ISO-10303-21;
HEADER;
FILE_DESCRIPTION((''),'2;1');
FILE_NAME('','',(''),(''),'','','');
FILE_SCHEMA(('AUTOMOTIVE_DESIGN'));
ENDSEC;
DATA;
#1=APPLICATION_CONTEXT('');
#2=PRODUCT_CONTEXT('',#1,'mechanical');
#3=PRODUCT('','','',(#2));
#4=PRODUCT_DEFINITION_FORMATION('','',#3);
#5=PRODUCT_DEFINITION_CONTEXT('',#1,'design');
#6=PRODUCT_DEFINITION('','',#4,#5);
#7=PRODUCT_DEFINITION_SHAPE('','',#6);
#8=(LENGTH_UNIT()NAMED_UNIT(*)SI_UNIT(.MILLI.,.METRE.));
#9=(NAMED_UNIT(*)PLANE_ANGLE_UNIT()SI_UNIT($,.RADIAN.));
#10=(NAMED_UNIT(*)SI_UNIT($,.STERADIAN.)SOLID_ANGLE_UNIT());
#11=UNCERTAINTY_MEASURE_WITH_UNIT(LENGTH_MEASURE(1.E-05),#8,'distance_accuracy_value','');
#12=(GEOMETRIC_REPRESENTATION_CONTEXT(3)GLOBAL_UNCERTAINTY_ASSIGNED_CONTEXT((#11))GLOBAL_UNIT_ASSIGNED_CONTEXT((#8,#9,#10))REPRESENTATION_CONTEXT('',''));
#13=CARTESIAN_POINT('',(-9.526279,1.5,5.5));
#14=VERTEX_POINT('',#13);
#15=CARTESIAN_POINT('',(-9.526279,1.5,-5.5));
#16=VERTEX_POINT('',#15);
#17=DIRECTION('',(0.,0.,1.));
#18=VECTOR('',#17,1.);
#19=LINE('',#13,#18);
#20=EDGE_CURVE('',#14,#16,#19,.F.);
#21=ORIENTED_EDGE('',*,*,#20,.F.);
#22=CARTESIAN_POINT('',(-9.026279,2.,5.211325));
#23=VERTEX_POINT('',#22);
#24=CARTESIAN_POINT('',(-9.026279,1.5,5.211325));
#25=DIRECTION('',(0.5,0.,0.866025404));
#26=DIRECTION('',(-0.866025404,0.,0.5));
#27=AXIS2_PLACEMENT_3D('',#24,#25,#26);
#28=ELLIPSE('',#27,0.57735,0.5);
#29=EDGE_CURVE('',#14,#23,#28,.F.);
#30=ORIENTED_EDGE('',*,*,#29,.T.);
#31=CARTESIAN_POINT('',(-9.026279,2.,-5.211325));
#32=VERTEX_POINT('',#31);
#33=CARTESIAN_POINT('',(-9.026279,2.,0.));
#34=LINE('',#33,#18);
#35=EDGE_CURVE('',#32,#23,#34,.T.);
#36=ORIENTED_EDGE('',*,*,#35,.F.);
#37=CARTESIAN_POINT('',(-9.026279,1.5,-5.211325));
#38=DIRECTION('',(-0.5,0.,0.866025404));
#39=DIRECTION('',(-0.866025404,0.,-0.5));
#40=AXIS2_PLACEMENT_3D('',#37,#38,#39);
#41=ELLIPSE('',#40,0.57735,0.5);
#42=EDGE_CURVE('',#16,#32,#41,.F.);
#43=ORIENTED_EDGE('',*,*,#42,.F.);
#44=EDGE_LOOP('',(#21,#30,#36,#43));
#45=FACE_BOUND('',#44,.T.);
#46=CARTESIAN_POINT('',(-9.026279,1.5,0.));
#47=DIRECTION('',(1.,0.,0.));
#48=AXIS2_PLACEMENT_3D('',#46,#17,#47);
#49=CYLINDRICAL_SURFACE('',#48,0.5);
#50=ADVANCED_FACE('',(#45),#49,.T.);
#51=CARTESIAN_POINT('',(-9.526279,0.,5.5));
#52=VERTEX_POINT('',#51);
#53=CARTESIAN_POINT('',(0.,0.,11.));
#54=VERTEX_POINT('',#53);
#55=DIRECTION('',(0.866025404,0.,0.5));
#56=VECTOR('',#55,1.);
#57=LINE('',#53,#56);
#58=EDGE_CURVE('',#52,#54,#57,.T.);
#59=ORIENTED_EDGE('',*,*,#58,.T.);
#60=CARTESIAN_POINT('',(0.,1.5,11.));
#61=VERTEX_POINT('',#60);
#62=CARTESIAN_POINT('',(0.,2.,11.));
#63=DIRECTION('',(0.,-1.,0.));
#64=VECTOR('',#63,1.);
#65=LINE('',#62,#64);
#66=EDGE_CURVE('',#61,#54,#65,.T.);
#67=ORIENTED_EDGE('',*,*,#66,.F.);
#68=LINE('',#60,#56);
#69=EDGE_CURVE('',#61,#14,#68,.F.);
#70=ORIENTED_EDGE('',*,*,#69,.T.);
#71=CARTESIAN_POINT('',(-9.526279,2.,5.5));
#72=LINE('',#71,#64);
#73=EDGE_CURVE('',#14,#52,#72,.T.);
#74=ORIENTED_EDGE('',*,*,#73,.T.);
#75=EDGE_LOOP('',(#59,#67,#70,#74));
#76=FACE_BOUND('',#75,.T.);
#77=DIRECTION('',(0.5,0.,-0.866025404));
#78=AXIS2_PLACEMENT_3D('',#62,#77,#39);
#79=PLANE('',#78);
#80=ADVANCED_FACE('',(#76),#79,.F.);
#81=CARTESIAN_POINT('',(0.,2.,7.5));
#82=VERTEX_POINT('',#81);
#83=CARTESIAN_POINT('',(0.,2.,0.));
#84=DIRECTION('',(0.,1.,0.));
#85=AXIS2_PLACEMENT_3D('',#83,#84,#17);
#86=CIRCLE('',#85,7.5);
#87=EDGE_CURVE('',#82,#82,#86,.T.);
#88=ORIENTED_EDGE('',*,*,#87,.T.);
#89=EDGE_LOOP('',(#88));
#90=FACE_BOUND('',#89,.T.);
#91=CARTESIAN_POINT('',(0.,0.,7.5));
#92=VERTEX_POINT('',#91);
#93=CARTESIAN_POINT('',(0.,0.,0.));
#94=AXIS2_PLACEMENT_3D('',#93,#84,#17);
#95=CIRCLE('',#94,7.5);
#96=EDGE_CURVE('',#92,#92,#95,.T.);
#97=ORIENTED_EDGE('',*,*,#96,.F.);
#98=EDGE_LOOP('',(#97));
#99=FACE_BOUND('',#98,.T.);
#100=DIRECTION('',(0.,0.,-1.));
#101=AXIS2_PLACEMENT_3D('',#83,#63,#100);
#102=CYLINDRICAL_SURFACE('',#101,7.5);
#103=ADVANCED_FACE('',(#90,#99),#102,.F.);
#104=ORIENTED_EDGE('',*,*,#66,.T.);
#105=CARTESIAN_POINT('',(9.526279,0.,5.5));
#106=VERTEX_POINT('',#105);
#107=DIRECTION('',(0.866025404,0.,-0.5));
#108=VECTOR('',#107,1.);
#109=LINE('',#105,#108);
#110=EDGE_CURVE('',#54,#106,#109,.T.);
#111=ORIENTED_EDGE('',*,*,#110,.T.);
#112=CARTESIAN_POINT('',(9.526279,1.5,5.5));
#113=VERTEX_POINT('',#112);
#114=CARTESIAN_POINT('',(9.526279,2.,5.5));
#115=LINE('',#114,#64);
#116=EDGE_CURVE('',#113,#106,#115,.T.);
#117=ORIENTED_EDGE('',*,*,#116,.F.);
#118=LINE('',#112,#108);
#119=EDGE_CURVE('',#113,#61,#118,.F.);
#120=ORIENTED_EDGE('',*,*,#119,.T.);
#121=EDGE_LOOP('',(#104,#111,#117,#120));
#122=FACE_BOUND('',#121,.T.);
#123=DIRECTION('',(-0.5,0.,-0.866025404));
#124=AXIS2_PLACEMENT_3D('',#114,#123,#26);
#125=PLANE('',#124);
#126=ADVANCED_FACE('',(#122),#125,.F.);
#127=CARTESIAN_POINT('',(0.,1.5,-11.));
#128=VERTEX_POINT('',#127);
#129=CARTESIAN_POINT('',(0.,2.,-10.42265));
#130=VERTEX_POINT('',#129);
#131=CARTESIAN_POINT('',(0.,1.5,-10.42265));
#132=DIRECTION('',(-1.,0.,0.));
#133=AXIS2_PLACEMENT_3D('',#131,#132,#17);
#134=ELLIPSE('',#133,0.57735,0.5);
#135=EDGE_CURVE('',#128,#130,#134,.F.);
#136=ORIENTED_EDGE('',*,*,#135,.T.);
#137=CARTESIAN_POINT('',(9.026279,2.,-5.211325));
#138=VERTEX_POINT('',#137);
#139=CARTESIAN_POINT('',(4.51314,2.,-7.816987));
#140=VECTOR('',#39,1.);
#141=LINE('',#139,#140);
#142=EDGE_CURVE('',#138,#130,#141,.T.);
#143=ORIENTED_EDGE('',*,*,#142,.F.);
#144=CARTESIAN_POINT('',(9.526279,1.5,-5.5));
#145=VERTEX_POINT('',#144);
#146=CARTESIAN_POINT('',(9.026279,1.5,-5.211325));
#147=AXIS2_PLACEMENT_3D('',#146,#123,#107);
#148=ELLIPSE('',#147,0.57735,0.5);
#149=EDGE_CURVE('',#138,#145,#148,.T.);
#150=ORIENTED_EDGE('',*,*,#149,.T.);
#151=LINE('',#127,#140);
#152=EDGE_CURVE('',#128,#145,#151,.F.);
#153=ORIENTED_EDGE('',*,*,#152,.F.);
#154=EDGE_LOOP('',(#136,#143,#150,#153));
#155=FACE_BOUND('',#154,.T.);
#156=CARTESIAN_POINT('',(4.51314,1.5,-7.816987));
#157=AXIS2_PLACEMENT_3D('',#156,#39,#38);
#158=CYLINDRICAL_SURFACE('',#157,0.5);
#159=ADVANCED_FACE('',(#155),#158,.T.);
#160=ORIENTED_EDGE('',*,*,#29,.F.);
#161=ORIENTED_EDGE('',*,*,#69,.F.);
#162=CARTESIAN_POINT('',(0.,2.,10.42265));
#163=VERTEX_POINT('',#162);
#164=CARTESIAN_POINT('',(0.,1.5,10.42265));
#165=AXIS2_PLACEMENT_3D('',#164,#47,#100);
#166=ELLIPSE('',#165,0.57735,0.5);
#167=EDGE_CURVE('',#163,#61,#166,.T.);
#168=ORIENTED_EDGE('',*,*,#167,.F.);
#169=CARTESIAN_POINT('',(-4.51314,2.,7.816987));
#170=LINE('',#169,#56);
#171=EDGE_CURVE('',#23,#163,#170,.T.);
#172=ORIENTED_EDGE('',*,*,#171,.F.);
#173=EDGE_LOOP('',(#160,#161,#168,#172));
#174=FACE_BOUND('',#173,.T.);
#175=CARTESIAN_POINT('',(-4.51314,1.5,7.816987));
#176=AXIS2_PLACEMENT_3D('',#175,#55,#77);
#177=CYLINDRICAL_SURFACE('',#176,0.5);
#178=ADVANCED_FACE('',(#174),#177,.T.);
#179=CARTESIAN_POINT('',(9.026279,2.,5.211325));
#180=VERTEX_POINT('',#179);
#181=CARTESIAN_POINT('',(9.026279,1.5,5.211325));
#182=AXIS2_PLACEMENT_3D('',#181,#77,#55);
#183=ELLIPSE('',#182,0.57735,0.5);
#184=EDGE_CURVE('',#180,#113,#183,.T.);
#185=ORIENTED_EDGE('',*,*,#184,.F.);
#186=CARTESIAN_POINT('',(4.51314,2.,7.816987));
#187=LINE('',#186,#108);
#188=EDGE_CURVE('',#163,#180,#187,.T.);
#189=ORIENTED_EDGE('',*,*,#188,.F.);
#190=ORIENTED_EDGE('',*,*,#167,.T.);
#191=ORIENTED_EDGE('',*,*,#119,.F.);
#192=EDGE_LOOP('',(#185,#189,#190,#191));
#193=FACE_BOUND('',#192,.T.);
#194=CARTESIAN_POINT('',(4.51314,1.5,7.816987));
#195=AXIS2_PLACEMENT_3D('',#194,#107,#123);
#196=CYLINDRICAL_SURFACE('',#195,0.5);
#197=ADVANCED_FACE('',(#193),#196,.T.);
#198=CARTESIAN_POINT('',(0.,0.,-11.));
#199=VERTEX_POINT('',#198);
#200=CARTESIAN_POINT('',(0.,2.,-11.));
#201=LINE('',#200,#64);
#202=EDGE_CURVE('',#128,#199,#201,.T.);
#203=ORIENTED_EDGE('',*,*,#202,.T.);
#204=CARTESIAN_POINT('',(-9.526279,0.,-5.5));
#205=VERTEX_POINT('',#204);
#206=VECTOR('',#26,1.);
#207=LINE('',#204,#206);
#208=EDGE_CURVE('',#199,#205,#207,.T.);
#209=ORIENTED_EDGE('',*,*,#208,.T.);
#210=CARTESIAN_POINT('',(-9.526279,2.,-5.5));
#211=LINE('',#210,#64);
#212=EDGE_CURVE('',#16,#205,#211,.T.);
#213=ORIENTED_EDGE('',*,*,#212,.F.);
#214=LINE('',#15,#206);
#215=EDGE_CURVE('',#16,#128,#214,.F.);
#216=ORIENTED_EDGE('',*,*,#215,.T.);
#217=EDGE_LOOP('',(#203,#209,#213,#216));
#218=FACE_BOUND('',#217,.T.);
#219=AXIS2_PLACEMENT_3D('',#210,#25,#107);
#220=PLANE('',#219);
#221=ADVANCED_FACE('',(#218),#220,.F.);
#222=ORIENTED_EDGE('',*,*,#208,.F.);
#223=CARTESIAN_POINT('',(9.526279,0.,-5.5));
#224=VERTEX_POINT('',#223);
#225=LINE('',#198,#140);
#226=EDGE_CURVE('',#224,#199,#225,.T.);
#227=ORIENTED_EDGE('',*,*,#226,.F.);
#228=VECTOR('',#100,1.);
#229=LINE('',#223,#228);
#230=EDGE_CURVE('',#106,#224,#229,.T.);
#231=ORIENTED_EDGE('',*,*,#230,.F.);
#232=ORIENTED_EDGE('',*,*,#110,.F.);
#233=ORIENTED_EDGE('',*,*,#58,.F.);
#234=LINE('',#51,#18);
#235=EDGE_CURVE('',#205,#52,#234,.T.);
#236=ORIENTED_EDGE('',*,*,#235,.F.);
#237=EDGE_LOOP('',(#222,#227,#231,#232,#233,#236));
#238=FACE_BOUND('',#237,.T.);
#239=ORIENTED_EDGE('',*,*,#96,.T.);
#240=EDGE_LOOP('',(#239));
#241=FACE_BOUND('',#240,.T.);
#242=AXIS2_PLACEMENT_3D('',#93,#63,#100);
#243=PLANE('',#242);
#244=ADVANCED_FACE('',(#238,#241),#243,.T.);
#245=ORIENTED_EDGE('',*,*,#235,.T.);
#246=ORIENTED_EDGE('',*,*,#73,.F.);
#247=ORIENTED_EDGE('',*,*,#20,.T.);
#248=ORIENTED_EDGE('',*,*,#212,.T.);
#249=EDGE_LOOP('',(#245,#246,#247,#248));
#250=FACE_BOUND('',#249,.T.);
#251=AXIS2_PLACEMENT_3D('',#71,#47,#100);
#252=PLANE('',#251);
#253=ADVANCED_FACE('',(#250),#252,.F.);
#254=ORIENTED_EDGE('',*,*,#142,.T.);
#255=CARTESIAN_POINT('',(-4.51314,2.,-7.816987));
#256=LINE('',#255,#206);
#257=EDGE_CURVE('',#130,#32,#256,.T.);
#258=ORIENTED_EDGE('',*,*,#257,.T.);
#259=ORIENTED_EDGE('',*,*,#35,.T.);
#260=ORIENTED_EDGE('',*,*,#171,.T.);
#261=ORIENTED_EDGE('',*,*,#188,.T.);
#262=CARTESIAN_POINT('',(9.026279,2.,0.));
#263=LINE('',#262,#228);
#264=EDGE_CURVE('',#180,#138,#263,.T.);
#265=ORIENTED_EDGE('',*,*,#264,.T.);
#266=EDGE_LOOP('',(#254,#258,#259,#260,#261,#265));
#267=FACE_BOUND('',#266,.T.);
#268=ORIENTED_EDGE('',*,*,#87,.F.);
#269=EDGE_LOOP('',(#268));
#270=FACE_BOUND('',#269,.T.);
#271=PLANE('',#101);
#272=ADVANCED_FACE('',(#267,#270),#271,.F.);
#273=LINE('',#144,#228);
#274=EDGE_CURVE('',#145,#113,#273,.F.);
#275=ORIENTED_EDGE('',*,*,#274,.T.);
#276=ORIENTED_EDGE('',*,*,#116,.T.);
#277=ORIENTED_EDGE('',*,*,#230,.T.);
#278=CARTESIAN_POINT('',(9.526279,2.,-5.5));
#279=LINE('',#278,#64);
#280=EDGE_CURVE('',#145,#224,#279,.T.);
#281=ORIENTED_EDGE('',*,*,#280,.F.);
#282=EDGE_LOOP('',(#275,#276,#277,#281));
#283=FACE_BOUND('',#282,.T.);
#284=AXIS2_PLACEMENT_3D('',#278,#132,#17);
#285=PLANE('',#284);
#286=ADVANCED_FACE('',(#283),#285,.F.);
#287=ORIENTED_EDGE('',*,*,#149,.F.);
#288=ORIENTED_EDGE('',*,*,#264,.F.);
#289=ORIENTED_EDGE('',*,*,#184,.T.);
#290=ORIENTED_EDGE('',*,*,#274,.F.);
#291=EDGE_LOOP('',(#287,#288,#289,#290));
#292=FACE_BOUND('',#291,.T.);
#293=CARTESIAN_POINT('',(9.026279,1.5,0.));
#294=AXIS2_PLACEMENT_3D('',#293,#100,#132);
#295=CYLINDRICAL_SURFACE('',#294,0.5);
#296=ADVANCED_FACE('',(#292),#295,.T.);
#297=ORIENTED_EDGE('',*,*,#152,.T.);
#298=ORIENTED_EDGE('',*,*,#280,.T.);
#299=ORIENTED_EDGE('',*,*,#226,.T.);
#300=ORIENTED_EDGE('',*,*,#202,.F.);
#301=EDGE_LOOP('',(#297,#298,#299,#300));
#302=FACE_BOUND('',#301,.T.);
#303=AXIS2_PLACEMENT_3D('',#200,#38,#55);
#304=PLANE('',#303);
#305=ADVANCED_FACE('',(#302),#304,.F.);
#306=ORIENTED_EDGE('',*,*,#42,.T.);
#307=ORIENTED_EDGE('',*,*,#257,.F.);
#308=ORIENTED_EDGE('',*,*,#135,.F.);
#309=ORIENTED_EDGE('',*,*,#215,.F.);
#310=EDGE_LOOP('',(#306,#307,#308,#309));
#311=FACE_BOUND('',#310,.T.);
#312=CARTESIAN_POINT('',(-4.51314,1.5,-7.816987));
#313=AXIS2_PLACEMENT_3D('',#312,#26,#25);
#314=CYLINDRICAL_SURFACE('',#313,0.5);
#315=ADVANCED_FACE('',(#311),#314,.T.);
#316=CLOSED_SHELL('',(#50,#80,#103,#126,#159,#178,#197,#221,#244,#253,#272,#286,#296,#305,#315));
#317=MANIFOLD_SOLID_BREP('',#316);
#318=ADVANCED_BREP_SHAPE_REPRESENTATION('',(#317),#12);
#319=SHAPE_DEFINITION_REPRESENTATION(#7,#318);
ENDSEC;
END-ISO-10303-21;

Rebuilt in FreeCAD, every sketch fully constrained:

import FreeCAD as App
import Part
import Sketcher
Q = App.Units.Quantity


def edges_at(feature, points):
    """Names of the edges that pass closest to the given points."""
    edges = feature.Shape.Edges
    near = lambda p: min(range(len(edges)), key=lambda i: edges[i].distToShape(Part.Vertex(*p))[0])
    return sorted({f"Edge{near(p) + 1}" for p in points})

doc = App.newDocument("Part")
body = doc.addObject("PartDesign::Body", "Body")

# Sketch on XZ plane
sketch1 = body.newObject("Sketcher::SketchObject", "Sketch")
sketch1.AttachmentSupport = (doc.getObject("XZ_Plane"), [""])
sketch1.MapMode = "FlatFace"
sketch1.addGeometry([
    Part.LineSegment(App.Vector(10, -6, 0), App.Vector(0, -11, 0)),  # 0
    Part.LineSegment(App.Vector(0, -11, 0), App.Vector(-10, -6, 0)),  # 1
    Part.LineSegment(App.Vector(-10, -6, 0), App.Vector(-10, 6, 0)),  # 2
    Part.LineSegment(App.Vector(-10, 6, 0), App.Vector(0, 11, 0)),  # 3
    Part.LineSegment(App.Vector(0, 11, 0), App.Vector(10, 6, 0)),  # 4
    Part.LineSegment(App.Vector(10, 6, 0), App.Vector(10, -6, 0)),  # 5
    Part.Circle(App.Vector(0, 0, 0), App.Vector(0, 0, 1), 8),  # 6
], False)
sketch1.addConstraint([
    Sketcher.Constraint("Coincident", 0, 2, 1, 1),
    Sketcher.Constraint("Coincident", 1, 2, 2, 1),
    Sketcher.Constraint("Coincident", 2, 2, 3, 1),
    Sketcher.Constraint("Coincident", 3, 2, 4, 1),
    Sketcher.Constraint("Coincident", 4, 2, 5, 1),
    Sketcher.Constraint("Coincident", 5, 2, 0, 1),
    Sketcher.Constraint("Vertical", 2),
    Sketcher.Constraint("Vertical", 5),
    Sketcher.Constraint("Coincident", 6, 3, -1, 1),
    Sketcher.Constraint("Symmetric", 0, 2, 3, 2, -1, 1),
    Sketcher.Constraint("Symmetric", 1, 2, 4, 2, -1, 1),
    Sketcher.Constraint("PointOnObject", 0, 2, -2),
    Sketcher.Constraint("Parallel", 0, 3),
    Sketcher.Constraint("Horizontal", 2, 2, 4, 2),
    Sketcher.Constraint("Diameter", 6, 15.0),
    Sketcher.Constraint("DistanceY", 2, 1, 2, 2, 11.0),
    Sketcher.Constraint("Angle", 0, Q("-150 deg")),
    Sketcher.Constraint("Distance", 0, 11.0),
])
pad1 = body.newObject("PartDesign::Pad", "Pad")
pad1.Profile = sketch1
pad1.Length = 2
pad1.Reversed = True
doc.recompute()

fillet = body.newObject("PartDesign::Fillet", "Fillet")
fillet.Base = (pad1, edges_at(pad1, [
    (-4.763, 2, 8.25),
    (4.763, 2, 8.25),
    (9.526, 2, 0),
    (4.763, 2, -8.25),
    (-4.763, 2, -8.25),
    (-9.526, 2, 0),
]))
fillet.Radius = 0.5

doc.recompute()
